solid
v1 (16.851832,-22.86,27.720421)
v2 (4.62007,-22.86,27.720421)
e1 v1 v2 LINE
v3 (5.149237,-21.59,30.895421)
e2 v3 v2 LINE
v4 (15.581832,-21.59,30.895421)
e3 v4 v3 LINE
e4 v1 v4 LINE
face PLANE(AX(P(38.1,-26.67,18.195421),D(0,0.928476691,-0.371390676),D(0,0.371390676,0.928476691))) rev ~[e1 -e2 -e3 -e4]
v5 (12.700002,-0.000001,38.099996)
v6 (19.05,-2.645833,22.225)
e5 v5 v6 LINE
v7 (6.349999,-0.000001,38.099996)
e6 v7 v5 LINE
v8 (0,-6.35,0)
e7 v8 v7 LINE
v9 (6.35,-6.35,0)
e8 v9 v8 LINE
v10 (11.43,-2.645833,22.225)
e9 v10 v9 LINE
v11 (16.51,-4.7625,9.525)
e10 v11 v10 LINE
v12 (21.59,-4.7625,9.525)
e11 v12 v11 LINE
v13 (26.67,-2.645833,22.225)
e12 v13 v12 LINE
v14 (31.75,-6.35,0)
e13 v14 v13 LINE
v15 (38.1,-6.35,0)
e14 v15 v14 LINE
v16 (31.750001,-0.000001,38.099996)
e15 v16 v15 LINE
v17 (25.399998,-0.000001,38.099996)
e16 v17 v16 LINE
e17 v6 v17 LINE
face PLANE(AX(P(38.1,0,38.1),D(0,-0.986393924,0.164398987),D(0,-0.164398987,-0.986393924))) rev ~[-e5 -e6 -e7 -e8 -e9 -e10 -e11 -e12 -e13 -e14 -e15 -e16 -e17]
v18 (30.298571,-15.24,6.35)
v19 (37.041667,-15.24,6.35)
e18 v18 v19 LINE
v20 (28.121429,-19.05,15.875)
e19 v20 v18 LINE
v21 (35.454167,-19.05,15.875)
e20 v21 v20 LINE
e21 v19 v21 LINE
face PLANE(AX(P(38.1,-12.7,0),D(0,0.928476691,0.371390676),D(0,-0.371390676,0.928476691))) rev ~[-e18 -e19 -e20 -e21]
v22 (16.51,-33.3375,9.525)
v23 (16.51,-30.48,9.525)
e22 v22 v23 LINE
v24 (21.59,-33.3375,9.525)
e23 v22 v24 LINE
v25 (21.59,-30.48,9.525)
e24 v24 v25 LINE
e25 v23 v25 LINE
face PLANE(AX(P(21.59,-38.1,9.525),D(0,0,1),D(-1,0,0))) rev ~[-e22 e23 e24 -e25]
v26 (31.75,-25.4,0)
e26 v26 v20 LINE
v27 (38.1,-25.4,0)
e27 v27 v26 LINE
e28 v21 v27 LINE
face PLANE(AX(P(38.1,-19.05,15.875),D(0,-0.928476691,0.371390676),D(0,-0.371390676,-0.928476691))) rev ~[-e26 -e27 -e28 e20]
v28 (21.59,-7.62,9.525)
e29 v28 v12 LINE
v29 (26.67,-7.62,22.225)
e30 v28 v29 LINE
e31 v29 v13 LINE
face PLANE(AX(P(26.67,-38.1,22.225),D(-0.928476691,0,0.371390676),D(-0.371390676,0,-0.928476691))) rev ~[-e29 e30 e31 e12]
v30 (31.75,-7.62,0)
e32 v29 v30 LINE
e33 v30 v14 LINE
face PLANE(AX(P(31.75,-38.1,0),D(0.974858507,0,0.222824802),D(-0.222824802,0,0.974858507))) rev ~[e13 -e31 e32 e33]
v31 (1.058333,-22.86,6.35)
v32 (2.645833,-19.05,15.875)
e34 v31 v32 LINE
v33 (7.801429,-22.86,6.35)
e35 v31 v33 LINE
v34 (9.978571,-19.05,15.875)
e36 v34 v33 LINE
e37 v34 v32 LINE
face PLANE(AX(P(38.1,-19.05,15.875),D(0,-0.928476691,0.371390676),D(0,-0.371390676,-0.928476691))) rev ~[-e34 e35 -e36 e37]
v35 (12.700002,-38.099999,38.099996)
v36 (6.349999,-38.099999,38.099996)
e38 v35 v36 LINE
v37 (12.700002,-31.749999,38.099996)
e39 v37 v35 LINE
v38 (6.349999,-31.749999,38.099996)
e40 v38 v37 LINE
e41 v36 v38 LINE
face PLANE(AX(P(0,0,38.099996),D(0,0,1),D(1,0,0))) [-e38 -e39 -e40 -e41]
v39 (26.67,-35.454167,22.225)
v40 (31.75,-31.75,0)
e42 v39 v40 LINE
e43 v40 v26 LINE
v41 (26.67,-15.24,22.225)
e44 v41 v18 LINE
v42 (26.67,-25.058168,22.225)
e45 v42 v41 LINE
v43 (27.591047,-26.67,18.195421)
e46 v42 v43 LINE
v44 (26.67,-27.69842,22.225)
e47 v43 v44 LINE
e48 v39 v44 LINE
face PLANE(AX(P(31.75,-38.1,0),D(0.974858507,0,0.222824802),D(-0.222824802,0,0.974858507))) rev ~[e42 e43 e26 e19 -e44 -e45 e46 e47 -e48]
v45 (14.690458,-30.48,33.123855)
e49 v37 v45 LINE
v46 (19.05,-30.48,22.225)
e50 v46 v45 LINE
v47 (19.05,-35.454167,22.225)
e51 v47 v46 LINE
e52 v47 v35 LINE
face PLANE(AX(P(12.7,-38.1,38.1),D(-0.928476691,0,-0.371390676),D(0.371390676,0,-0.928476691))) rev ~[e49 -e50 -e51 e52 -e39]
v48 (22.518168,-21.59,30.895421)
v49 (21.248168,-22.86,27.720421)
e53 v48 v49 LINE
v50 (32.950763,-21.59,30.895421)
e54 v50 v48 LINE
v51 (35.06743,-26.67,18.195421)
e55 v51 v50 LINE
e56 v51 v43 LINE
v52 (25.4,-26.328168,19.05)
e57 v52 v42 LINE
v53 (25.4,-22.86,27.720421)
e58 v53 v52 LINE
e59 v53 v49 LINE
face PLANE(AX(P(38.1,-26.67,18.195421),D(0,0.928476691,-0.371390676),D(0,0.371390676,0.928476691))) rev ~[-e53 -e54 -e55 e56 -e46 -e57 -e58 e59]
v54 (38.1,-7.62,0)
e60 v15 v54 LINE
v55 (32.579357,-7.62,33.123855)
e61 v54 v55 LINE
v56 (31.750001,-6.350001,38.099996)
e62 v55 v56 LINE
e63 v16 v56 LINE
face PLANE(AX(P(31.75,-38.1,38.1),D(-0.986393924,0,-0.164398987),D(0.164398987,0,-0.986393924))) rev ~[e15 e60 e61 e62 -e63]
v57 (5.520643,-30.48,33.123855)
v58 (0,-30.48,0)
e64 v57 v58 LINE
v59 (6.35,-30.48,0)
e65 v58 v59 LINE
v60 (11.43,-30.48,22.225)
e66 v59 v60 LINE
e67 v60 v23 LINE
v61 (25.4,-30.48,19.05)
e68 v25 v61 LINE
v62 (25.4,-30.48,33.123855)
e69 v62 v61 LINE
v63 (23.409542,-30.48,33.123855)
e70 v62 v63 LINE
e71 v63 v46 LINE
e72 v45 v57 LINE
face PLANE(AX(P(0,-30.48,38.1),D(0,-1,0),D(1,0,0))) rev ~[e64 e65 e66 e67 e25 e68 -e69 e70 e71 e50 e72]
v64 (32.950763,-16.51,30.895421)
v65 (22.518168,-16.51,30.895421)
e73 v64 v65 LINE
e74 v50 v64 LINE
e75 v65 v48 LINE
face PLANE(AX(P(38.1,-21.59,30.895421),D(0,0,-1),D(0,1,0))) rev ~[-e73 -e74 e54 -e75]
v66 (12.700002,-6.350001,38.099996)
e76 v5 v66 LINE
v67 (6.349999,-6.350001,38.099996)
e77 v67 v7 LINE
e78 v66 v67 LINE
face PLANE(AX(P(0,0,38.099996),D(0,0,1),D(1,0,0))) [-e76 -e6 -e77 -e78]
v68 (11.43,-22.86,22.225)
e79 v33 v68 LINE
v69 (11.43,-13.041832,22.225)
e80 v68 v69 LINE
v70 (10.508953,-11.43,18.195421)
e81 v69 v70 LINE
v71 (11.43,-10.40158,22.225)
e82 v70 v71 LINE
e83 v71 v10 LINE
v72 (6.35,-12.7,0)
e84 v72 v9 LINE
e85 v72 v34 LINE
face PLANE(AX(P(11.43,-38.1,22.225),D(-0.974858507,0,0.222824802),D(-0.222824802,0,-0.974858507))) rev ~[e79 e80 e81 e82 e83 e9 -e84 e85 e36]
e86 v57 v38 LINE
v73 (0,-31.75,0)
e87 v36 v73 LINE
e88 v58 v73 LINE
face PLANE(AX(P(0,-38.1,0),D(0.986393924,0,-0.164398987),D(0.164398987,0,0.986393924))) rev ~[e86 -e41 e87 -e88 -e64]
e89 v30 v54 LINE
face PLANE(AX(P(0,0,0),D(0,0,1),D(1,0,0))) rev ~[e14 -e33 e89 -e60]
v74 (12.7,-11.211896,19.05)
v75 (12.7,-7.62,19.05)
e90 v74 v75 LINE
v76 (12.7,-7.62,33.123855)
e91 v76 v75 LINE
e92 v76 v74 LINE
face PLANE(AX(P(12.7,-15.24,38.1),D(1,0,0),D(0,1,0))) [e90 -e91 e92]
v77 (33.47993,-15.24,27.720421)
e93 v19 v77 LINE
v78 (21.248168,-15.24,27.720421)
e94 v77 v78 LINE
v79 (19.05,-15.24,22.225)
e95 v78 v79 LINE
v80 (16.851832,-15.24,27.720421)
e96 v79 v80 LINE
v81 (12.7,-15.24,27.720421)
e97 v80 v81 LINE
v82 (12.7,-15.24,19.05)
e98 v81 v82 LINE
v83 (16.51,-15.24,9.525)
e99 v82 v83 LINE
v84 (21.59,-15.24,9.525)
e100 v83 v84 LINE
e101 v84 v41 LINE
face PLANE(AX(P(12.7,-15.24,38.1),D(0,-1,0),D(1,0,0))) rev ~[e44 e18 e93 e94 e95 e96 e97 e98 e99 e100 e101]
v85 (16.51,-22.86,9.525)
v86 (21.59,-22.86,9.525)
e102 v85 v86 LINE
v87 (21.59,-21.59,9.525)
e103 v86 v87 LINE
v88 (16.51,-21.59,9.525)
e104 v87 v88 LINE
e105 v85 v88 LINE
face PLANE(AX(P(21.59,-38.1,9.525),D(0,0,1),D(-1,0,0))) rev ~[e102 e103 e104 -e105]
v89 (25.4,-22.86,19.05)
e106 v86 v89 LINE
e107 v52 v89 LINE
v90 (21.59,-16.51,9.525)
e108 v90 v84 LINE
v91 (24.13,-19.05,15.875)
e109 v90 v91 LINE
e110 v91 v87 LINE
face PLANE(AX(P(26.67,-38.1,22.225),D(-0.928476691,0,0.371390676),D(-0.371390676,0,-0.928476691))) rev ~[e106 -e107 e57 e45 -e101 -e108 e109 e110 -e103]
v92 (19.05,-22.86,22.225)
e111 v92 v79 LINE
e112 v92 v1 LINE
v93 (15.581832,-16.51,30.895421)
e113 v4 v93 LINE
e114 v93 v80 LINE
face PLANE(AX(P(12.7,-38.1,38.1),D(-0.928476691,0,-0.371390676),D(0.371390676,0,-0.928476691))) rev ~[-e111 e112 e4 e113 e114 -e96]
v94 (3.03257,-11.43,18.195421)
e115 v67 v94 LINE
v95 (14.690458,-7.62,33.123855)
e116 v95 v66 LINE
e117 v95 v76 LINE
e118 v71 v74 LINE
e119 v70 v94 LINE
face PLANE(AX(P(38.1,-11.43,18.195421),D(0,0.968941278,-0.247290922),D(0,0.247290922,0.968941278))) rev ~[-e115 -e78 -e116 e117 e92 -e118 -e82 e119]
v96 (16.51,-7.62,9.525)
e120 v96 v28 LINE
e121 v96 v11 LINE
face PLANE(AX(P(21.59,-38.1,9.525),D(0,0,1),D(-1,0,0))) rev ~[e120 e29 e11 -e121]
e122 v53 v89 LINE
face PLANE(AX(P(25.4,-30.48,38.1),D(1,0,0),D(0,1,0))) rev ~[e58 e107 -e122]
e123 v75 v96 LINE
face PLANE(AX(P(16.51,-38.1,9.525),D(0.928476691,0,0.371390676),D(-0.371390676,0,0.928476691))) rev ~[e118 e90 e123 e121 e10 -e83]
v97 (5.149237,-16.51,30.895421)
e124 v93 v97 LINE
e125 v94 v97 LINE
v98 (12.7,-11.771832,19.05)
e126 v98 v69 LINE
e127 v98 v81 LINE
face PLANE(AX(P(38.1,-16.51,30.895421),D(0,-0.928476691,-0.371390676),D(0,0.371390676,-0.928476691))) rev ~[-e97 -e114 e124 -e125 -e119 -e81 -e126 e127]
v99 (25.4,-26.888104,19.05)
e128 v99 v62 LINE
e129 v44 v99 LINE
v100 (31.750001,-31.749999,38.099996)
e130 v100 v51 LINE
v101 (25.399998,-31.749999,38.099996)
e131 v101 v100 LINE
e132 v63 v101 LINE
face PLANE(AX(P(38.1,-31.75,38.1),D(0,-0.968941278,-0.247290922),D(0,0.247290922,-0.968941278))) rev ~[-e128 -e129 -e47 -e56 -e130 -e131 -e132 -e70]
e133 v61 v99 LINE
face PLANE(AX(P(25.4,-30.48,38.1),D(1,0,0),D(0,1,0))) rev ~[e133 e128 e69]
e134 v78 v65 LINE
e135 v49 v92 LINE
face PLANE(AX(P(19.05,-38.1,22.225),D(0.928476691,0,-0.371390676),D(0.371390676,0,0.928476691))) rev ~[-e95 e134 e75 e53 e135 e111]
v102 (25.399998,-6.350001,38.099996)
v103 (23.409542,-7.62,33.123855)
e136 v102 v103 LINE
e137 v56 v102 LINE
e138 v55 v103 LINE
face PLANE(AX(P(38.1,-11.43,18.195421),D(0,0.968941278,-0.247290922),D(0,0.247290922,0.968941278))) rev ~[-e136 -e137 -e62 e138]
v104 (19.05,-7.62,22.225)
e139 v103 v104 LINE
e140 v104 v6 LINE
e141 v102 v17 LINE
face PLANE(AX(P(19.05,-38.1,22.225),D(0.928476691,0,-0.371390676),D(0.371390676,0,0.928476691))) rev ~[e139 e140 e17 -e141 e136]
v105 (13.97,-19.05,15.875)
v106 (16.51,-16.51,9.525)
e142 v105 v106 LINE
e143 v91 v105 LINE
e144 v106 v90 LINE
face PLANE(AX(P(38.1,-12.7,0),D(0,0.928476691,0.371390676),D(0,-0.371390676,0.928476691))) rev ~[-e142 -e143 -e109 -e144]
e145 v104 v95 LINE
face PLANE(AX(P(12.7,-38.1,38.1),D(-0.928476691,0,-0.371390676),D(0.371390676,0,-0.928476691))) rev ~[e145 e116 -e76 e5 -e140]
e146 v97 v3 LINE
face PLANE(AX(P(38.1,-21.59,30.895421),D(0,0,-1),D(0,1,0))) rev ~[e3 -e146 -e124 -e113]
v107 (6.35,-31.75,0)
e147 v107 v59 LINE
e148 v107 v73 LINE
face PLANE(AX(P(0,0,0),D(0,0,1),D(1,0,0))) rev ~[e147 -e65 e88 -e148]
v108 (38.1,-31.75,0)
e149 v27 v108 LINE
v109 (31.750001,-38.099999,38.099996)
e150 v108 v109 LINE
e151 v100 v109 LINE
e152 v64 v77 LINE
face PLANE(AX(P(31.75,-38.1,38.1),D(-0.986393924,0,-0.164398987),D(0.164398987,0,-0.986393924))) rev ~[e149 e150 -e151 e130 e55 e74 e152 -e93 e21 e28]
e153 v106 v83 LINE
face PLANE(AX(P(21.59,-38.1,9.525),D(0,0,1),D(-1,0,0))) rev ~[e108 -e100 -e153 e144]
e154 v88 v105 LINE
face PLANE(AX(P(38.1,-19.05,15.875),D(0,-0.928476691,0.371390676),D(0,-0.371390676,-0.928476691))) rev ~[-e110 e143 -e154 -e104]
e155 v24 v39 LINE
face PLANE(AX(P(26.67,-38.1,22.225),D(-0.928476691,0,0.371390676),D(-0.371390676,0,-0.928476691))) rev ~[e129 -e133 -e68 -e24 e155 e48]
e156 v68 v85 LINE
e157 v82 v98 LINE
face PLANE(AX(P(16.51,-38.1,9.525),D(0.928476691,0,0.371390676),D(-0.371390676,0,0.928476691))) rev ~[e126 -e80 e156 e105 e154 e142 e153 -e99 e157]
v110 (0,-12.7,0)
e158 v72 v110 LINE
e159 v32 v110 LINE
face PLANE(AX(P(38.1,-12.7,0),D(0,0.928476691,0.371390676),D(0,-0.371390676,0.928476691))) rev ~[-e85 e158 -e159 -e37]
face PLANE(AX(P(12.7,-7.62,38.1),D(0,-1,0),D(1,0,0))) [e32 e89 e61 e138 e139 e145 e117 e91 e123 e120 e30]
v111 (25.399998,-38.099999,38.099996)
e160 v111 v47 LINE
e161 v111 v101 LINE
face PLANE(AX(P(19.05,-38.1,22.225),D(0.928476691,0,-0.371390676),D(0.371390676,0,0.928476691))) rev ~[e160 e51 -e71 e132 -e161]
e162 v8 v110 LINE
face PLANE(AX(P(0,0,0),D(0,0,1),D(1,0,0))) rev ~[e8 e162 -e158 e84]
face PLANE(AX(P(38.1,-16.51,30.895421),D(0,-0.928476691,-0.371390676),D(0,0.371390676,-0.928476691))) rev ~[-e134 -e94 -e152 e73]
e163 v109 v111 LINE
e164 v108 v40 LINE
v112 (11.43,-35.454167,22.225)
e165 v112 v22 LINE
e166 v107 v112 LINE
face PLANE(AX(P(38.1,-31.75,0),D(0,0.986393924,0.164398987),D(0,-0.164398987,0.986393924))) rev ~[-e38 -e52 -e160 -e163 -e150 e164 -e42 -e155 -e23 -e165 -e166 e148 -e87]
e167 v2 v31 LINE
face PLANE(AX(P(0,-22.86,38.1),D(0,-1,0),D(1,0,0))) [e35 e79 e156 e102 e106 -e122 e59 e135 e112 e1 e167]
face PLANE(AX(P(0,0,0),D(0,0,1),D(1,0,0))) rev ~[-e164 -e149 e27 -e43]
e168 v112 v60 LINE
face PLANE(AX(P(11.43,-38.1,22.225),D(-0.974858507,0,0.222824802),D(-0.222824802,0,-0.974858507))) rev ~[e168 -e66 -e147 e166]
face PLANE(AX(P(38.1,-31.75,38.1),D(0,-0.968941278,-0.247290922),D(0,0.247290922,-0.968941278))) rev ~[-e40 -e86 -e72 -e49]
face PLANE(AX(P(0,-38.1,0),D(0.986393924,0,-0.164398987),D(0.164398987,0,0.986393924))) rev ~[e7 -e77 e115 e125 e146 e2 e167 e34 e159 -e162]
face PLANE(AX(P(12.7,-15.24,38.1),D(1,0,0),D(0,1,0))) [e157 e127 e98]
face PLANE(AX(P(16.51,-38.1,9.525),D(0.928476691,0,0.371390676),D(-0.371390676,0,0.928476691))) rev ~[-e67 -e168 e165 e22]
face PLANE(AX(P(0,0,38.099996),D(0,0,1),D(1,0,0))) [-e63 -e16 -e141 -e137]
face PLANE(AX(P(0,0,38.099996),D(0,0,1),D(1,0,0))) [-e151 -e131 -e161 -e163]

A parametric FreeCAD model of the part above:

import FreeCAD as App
import Part
import Sketcher
Q = App.Units.Quantity


def add_polygon(sketch, points):
    """Adds a closed chain of lines whose ends are joined by coincident constraints."""
    first, n = sketch.GeometryCount, len(points)
    for a, b in zip(points, points[1:] + points[:1]):
        sketch.addGeometry(Part.LineSegment(App.Vector(*a, 0), App.Vector(*b, 0)), False)
    for i in range(n):
        sketch.addConstraint(Sketcher.Constraint("Coincident", first + i, 2, first + (i + 1) % n, 1))

doc = App.newDocument("Part")
body = doc.addObject("PartDesign::Body", "Body")

# Sketch on XZ plane
sketch1 = body.newObject("Sketcher::SketchObject", "Sketch")
sketch1.AttachmentSupport = (doc.getObject("XZ_Plane"), [""])
sketch1.MapMode = "FlatFace"
add_polygon(sketch1, [(0, 38), (0, 0), (38, 0), (38, 38)])  # lines 0-3
sketch1.addConstraint([
    Sketcher.Constraint("Vertical", 0),
    Sketcher.Constraint("Horizontal", 1),
    Sketcher.Constraint("Vertical", 2),
    Sketcher.Constraint("Horizontal", 3),
    Sketcher.Constraint("Coincident", 0, 2, -1, 1),
    Sketcher.Constraint("DistanceX", 1, 1, 1, 2, Q("1.5 in")),
    Sketcher.Constraint("DistanceY", 0, 2, 0, 1, Q("1.4999998 in")),
])
pad1 = body.newObject("PartDesign::Pad", "Pad")
pad1.Profile = sketch1
pad1.Length = Q("1.5 in")

# Sketch on YZ plane
sketch2 = body.newObject("Sketcher::SketchObject", "Sketch001")
sketch2.AttachmentSupport = (doc.getObject("YZ_Plane"), [""])
sketch2.MapMode = "FlatFace"
sketch2.AttachmentOffset = App.Placement(App.Vector(0, 0, 1.5 * 25.4), App.Rotation())
add_polygon(sketch2, [(-32, 0), (-38, 38), (-38, 0)])  # lines 0-2
add_polygon(sketch2, [(-11, 18), (-6, 38), (-32, 38), (-27, 18), (-22, 31), (-17, 31)])  # lines 3-8
add_polygon(sketch2, [(-25, 0), (-13, 0), (-19, 16)])  # lines 9-11
add_polygon(sketch2, [(-6, 0), (0, 0), (0, 38)])  # lines 12-14
sketch2.addConstraint([
    Sketcher.Constraint("Vertical", 1),
    Sketcher.Constraint("Horizontal", 2),
    Sketcher.Constraint("Horizontal", 4),
    Sketcher.Constraint("Horizontal", 7),
    Sketcher.Constraint("Horizontal", 9),
    Sketcher.Constraint("Horizontal", 12),
    Sketcher.Constraint("Vertical", 13),
    Sketcher.Constraint("Coincident", 12, 2, -1, 1),
    Sketcher.Constraint("PointOnObject", 1, 2, -1),
    Sketcher.Constraint("PointOnObject", 9, 2, -1),
    Sketcher.Constraint("Parallel", 8, 10),
    Sketcher.Constraint("Parallel", 6, 11),
    Sketcher.Constraint("Horizontal", 0, 2, 3, 2),
    Sketcher.Constraint("Horizontal", 5, 2, 8, 2),
    Sketcher.Constraint("Horizontal", 4, 2, 13, 2),
    Sketcher.Constraint("Vertical", 2, 2, 4, 2),
    Sketcher.Constraint("Vertical", 3, 2, 14, 2),
    Sketcher.Constraint("Equal", 2, 12),
    Sketcher.Constraint("Equal", 3, 5),
    Sketcher.Constraint("Equal", 6, 8),
    Sketcher.Constraint("DistanceX", 4, 2, 4, 1, Q("1 in")),
    Sketcher.Constraint("DistanceX", 7, 1, 7, 2, Q("0.2 in")),
    Sketcher.Constraint("DistanceX", 9, 1, 9, 2, Q("0.5 in")),
    Sketcher.Constraint("DistanceY", 1, 2, 1, 1, Q("1.5 in")),
    Sketcher.Constraint("DistanceX", 11, 2, -1, 1, Q("1 in")),
    Sketcher.Constraint("DistanceX", 1, 2, 9, 2, Q("1 in")),
    Sketcher.Constraint("DistanceX", 2, 2, 5, 2, Q("0.2 in")),
    Sketcher.Constraint("DistanceY", 5, 2, 6, 2, Q("0.5 in")),
    Sketcher.Constraint("DistanceY", -1, 1, 5, 2, 18.195421),
])
pocket1 = body.newObject("PartDesign::Pocket", "Pocket")
pocket1.Profile = sketch2
pocket1.Length = Q("1.5 in")

# Sketch on XZ plane
sketch3 = body.newObject("Sketcher::SketchObject", "Sketch002")
sketch3.AttachmentSupport = (doc.getObject("XZ_Plane"), [""])
sketch3.MapMode = "FlatFace"
sketch3.AttachmentOffset = App.Placement(App.Vector(0, 0, 1.5 * 25.4), App.Rotation())
add_polygon(sketch3, [(0, 38), (0, 0), (6, 38)])  # lines 0-2
add_polygon(sketch3, [(25, 38), (13, 38), (19, 22)])  # lines 3-5
add_polygon(sketch3, [(32, 38), (38, 0), (38, 38)])  # lines 6-8
add_polygon(sketch3, [(11, 22), (6, 0), (32, 0), (27, 22), (22, 10), (17, 10)])  # lines 9-14
sketch3.addConstraint([
    Sketcher.Constraint("Vertical", 0),
    Sketcher.Constraint("Horizontal", 2),
    Sketcher.Constraint("Horizontal", 3),
    Sketcher.Constraint("Vertical", 7),
    Sketcher.Constraint("Horizontal", 8),
    Sketcher.Constraint("Horizontal", 10),
    Sketcher.Constraint("Horizontal", 13),
    Sketcher.Constraint("Coincident", 0, 2, -1, 1),
    Sketcher.Constraint("PointOnObject", 6, 2, -1),
    Sketcher.Constraint("PointOnObject", 9, 2, -1),
    Sketcher.Constraint("Parallel", 5, 12),
    Sketcher.Constraint("Parallel", 4, 14),
    Sketcher.Constraint("Horizontal", 2, 2, 3, 2),
    Sketcher.Constraint("Horizontal", 5, 2, 7, 2),
    Sketcher.Constraint("Horizontal", 4, 2, 11, 2),
    Sketcher.Constraint("Horizontal", 11, 2, 14, 2),
    Sketcher.Constraint("Vertical", 1, 2, 9, 2),
    Sketcher.Constraint("Vertical", 8, 2, 10, 2),
    Sketcher.Constraint("Equal", 2, 8),
    Sketcher.Constraint("Equal", 4, 5),
    Sketcher.Constraint("Equal", 9, 11),
    Sketcher.Constraint("DistanceX", 10, 1, 10, 2, Q("1 in")),
    Sketcher.Constraint("DistanceX", 3, 2, 3, 1, Q("0.5 in")),
    Sketcher.Constraint("DistanceX", 13, 2, 13, 1, Q("0.2 in")),
    Sketcher.Constraint("DistanceY", 0, 2, 0, 1, Q("1.5 in")),
    Sketcher.Constraint("DistanceX", -1, 1, 5, 2, Q("1 in")),
    Sketcher.Constraint("DistanceX", 3, 2, 6, 2, Q("1 in")),
    Sketcher.Constraint("DistanceX", 4, 2, 11, 2, Q("0.3 in")),
    Sketcher.Constraint("DistanceY", 12, 2, 4, 2, Q("0.5 in")),
])
pocket2 = body.newObject("PartDesign::Pocket", "Pocket001")
pocket2.Profile = sketch3
pocket2.Length = Q("1.5 in")

# Sketch on XY plane
sketch4 = body.newObject("Sketcher::SketchObject", "Sketch003")
sketch4.AttachmentSupport = (doc.getObject("XY_Plane"), [""])
sketch4.MapMode = "FlatFace"
sketch4.AttachmentOffset = App.Placement(App.Vector(0, 0, 1.5 * 25.4), App.Rotation())
add_polygon(sketch4, [(0, -23), (0, -30), (25, -30), (25, -23)])  # lines 0-3
add_polygon(sketch4, [(13, -8), (13, -15), (38, -15), (38, -8)])  # lines 4-7
sketch4.addConstraint([
    Sketcher.Constraint("Vertical", 0),
    Sketcher.Constraint("Horizontal", 1),
    Sketcher.Constraint("Vertical", 2),
    Sketcher.Constraint("Horizontal", 3),
    Sketcher.Constraint("Vertical", 4),
    Sketcher.Constraint("Horizontal", 5),
    Sketcher.Constraint("Vertical", 6),
    Sketcher.Constraint("Horizontal", 7),
    Sketcher.Constraint("PointOnObject", 0, 2, -2),
    Sketcher.Constraint("Equal", 3, 5),
    Sketcher.Constraint("Equal", 2, 4),
    Sketcher.Constraint("DistanceX", 1, 1, 1, 2, Q("1 in")),
    Sketcher.Constraint("DistanceY", 0, 2, 0, 1, Q("0.3 in")),
    Sketcher.Constraint("DistanceY", 0, 2, -1, 1, Q("1.2 in")),
    Sketcher.Constraint("DistanceX", -1, 1, 4, 2, Q("0.5 in")),
    Sketcher.Constraint("DistanceY", 4, 2, -1, 1, Q("0.6 in")),
])
pocket3 = body.newObject("PartDesign::Pocket", "Pocket002")
pocket3.Profile = sketch4
pocket3.Length = Q("1.5 in")

doc.recompute()
